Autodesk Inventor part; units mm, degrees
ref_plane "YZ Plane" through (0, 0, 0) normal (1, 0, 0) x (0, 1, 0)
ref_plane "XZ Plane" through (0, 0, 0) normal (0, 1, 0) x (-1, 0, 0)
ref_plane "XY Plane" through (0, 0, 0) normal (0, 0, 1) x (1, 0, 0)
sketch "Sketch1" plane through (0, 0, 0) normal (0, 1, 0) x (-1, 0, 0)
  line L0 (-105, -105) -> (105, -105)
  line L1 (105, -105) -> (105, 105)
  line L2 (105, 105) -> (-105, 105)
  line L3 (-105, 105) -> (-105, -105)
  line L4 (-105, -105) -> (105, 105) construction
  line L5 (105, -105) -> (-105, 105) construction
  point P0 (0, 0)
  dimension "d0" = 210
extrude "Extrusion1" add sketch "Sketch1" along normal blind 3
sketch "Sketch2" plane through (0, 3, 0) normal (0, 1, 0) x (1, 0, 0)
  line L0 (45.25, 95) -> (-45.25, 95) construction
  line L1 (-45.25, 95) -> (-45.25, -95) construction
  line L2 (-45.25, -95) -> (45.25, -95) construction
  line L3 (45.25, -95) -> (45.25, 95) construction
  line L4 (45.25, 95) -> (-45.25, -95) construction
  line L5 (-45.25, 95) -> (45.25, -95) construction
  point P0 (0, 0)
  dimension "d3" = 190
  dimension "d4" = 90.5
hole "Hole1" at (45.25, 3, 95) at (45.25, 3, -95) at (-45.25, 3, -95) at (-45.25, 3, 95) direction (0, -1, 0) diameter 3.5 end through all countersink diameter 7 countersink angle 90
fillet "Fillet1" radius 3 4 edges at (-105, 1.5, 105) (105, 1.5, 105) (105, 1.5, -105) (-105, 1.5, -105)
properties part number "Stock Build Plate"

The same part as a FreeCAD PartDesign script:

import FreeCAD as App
import Part
import Sketcher

V = App.Vector
Q = App.Units.Quantity


def edges_at(feature, points):
    """Names of the edges that pass closest to the given points."""
    edges = feature.Shape.Edges
    near = lambda p: min(range(len(edges)), key=lambda i: edges[i].distToShape(Part.Vertex(*p))[0])
    return sorted({f"Edge{near(p) + 1}" for p in points})


def add_polygon(sketch, points):
    """Adds a closed chain of lines whose ends are joined by coincident constraints."""
    first, n = sketch.GeometryCount, len(points)
    for a, b in zip(points, points[1:] + points[:1]):
        sketch.addGeometry(Part.LineSegment(App.Vector(*a, 0), App.Vector(*b, 0)), False)
    for i in range(n):
        sketch.addConstraint(Sketcher.Constraint("Coincident", first + i, 2, first + (i + 1) % n, 1))

doc = App.newDocument("Part")
body = doc.addObject("PartDesign::Body", "Body")

# Sketch on XZ plane
sketch1 = body.newObject("Sketcher::SketchObject", "Sketch")
sketch1.AttachmentSupport = (doc.getObject("XZ_Plane"), [""])
sketch1.MapMode = "FlatFace"
add_polygon(sketch1, [(105, 105), (105, -105), (-105, -105), (-105, 105)])  # lines 0-3
sketch1.addConstraint(Sketcher.Constraint("Vertical", 0))
sketch1.addConstraint(Sketcher.Constraint("Horizontal", 1))
sketch1.addConstraint(Sketcher.Constraint("Vertical", 2))
sketch1.addConstraint(Sketcher.Constraint("Horizontal", 3))
sketch1.addConstraint(Sketcher.Constraint("Symmetric", 0, 2, 2, 2, -1, 1))
sketch1.addConstraint(Sketcher.Constraint("Equal", 3, 0))
sketch1.addConstraint(Sketcher.Constraint("DistanceX", 1, 2, 1, 1, Q("210 mm")))
pad1 = body.newObject("PartDesign::Pad", "Pad")
pad1.Profile = sketch1
pad1.Length = 3
pad1.Reversed = True

# Sketch on XZ plane
sketch2 = body.newObject("Sketcher::SketchObject", "Sketch001")
sketch2.AttachmentSupport = (doc.getObject("XZ_Plane"), [""])
sketch2.MapMode = "FlatFace"
sketch2.AttachmentOffset = App.Placement(V(0, 0, -3), App.Rotation())
sketch2.addGeometry(Part.Circle(V(45.25, 95, 0), V(0, 0, 1), 1.75), False)
sketch2.addGeometry(Part.Circle(V(45.25, -95, 0), V(0, 0, 1), 1.75), False)
sketch2.addGeometry(Part.Circle(V(-45.25, -95, 0), V(0, 0, 1), 1.75), False)
sketch2.addGeometry(Part.Circle(V(-45.25, 95, 0), V(0, 0, 1), 1.75), False)
sketch2.addConstraint(Sketcher.Constraint("Equal", 0, 1))
sketch2.addConstraint(Sketcher.Constraint("Equal", 1, 2))
sketch2.addConstraint(Sketcher.Constraint("Equal", 2, 3))
sketch2.addConstraint(Sketcher.Constraint("Symmetric", 0, 3, 2, 3, -1, 1))
sketch2.addConstraint(Sketcher.Constraint("Symmetric", 1, 3, 3, 3, -1, 1))
sketch2.addConstraint(Sketcher.Constraint("Symmetric", 1, 3, 2, 3, -2))
sketch2.addConstraint(Sketcher.Constraint("Diameter", 0, Q("3.5 mm")))
sketch2.addConstraint(Sketcher.Constraint("DistanceY", -1, 1, 0, 3, Q("95 mm")))
sketch2.addConstraint(Sketcher.Constraint("DistanceX", 2, 3, 1, 3, Q("90.5 mm")))
doc.recompute()
hole = body.newObject("PartDesign::Hole", "Hole")
hole.Profile = sketch2
hole.ThreadType = "None"
hole.Diameter = 3.5
hole.DepthType = "ThroughAll"
hole.HoleCutType = "Countersink"
hole.HoleCutDiameter = 7
hole.HoleCutCountersinkAngle = 90
hole.Reversed = True
doc.recompute()

fillet = body.newObject("PartDesign::Fillet", "Fillet")
fillet.Base = (hole, edges_at(hole, [
    (-105, 1.5, 105),
    (105, 1.5, 105),
    (105, 1.5, -105),
    (-105, 1.5, -105),
]))
fillet.Radius = 3

doc.recompute()
